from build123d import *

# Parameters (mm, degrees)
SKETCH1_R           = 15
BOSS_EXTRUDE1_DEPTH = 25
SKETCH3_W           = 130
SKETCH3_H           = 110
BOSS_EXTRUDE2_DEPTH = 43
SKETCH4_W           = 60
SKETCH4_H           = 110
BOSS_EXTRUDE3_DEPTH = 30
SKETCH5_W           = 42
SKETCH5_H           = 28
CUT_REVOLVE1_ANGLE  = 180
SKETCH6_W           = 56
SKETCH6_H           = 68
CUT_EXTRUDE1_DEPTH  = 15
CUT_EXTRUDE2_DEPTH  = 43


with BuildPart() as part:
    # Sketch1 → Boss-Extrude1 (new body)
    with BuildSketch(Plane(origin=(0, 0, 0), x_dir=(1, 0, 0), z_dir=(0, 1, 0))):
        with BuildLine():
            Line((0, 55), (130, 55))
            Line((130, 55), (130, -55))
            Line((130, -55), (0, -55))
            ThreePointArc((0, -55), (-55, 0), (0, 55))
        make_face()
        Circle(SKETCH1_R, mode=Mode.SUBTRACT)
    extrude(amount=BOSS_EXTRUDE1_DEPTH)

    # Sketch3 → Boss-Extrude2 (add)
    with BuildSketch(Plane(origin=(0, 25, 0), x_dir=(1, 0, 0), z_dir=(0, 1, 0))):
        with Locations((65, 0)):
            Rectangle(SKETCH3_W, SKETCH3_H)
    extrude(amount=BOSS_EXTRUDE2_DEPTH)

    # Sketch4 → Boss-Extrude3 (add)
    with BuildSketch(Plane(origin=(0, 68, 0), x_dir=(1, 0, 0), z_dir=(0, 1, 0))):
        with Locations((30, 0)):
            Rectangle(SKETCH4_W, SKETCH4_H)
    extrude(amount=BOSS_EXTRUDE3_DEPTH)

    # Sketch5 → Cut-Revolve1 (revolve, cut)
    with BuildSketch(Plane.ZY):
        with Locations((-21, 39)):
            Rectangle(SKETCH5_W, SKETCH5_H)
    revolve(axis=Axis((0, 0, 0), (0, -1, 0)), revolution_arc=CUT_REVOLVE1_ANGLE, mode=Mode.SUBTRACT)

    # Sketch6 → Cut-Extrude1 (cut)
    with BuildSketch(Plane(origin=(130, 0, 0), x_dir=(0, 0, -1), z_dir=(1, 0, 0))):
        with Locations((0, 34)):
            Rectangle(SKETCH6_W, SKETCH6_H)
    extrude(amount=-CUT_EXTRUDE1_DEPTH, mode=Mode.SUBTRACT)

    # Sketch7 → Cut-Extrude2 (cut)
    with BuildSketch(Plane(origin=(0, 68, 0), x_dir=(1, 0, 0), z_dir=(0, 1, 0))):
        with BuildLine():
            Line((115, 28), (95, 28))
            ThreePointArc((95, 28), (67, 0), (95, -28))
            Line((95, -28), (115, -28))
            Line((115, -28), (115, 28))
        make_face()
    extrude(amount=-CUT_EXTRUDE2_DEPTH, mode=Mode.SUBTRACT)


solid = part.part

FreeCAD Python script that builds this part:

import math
import FreeCAD as App
import Part
import Sketcher

doc = App.newDocument("Part")
body = doc.addObject("PartDesign::Body", "Body")

# Sketch on XZ plane
sketch1 = doc.addObject("Sketcher::SketchObject", "Sketch")
body.addObject(sketch1)
sketch1.AttachmentSupport = (doc.XZ_Plane, [""])
sketch1.MapMode = "FlatFace"
sketch1.addGeometry([
    Part.LineSegment(App.Vector(130, -55, 0), App.Vector(0, -55, 0)),  # 0
    Part.ArcOfCircle(Part.Circle(App.Vector(0, 0, 0), App.Vector(0, 0, 1), 55), math.radians(90), math.radians(270)),  # 1
    Part.LineSegment(App.Vector(0, 55, 0), App.Vector(130, 55, 0)),  # 2
    Part.LineSegment(App.Vector(130, 55, 0), App.Vector(130, -55, 0)),  # 3
    Part.Circle(App.Vector(0, 0, 0), App.Vector(0, 0, 1), 15),  # 4
], False)
sketch1.addConstraint([
    Sketcher.Constraint("Tangent", 0, 2, 1, 2),
    Sketcher.Constraint("Tangent", 1, 1, 2, 1),
    Sketcher.Constraint("Coincident", 2, 2, 3, 1),
    Sketcher.Constraint("Coincident", 3, 2, 0, 1),
    Sketcher.Constraint("Horizontal", 0),
    Sketcher.Constraint("Horizontal", 2),
    Sketcher.Constraint("Vertical", 3),
    Sketcher.Constraint("Coincident", 1, 3, -1, 1),
    Sketcher.Constraint("Coincident", 4, 3, -1, 1),
    Sketcher.Constraint("Diameter", 4, 30.0),
    Sketcher.Constraint("Radius", 1, 55.0),
    Sketcher.Constraint("DistanceX", 0, 2, 0, 1, 130.0),
])
pad1 = doc.addObject("PartDesign::Pad", "Pad")
body.addObject(pad1)
pad1.Profile = sketch1
pad1.Length = 25
pad1.Reversed = True

# Sketch on XZ plane
sketch2 = doc.addObject("Sketcher::SketchObject", "Sketch001")
body.addObject(sketch2)
sketch2.AttachmentSupport = (doc.XZ_Plane, [""])
sketch2.MapMode = "FlatFace"
sketch2.AttachmentOffset = App.Placement(App.Vector(0, 0, -25), App.Rotation())
sketch2.addGeometry([
    Part.LineSegment(App.Vector(0, -55, 0), App.Vector(0, 55, 0)),
    Part.LineSegment(App.Vector(0, 55, 0), App.Vector(130, 55, 0)),
    Part.LineSegment(App.Vector(130, 55, 0), App.Vector(130, -55, 0)),
    Part.LineSegment(App.Vector(130, -55, 0), App.Vector(0, -55, 0)),
], False)
sketch2.addConstraint([
    Sketcher.Constraint("Coincident", 0, 2, 1, 1),
    Sketcher.Constraint("Coincident", 1, 2, 2, 1),
    Sketcher.Constraint("Coincident", 2, 2, 3, 1),
    Sketcher.Constraint("Coincident", 3, 2, 0, 1),
    Sketcher.Constraint("Vertical", 0),
    Sketcher.Constraint("Horizontal", 1),
    Sketcher.Constraint("Vertical", 2),
    Sketcher.Constraint("Horizontal", 3),
    Sketcher.Constraint("Symmetric", 0, 2, 3, 2, -1, 1),
    Sketcher.Constraint("DistanceX", 1, 1, 1, 2, 130.0),
    Sketcher.Constraint("DistanceY", 0, 1, 0, 2, 110.0),
])
pad2 = doc.addObject("PartDesign::Pad", "Pad001")
body.addObject(pad2)
pad2.Profile = sketch2
pad2.Length = 43
pad2.Reversed = True

# Sketch on XZ plane
sketch3 = doc.addObject("Sketcher::SketchObject", "Sketch002")
body.addObject(sketch3)
sketch3.AttachmentSupport = (doc.XZ_Plane, [""])
sketch3.MapMode = "FlatFace"
sketch3.AttachmentOffset = App.Placement(App.Vector(0, 0, -68), App.Rotation())
sketch3.addGeometry([
    Part.LineSegment(App.Vector(0, -55, 0), App.Vector(0, 55, 0)),
    Part.LineSegment(App.Vector(0, 55, 0), App.Vector(60, 55, 0)),
    Part.LineSegment(App.Vector(60, 55, 0), App.Vector(60, -55, 0)),
    Part.LineSegment(App.Vector(60, -55, 0), App.Vector(0, -55, 0)),
], False)
sketch3.addConstraint([
    Sketcher.Constraint("Coincident", 0, 2, 1, 1),
    Sketcher.Constraint("Coincident", 1, 2, 2, 1),
    Sketcher.Constraint("Coincident", 2, 2, 3, 1),
    Sketcher.Constraint("Coincident", 3, 2, 0, 1),
    Sketcher.Constraint("Vertical", 0),
    Sketcher.Constraint("Horizontal", 1),
    Sketcher.Constraint("Vertical", 2),
    Sketcher.Constraint("Horizontal", 3),
    Sketcher.Constraint("Symmetric", 0, 2, 3, 2, -1, 1),
    Sketcher.Constraint("DistanceX", 1, 1, 1, 2, 60.0),
    Sketcher.Constraint("DistanceY", 0, 1, 0, 2, 110.0),
])
pad3 = doc.addObject("PartDesign::Pad", "Pad002")
body.addObject(pad3)
pad3.Profile = sketch3
pad3.Length = 30
pad3.Reversed = True

# Sketch on YZ plane
sketch4 = doc.addObject("Sketcher::SketchObject", "Sketch003")
body.addObject(sketch4)
sketch4.AttachmentSupport = (doc.YZ_Plane, [""])
sketch4.MapMode = "FlatFace"
sketch4.addGeometry([
    Part.LineSegment(App.Vector(53, -42, 0), App.Vector(25, -42, 0)),
    Part.LineSegment(App.Vector(25, -42, 0), App.Vector(25, 0, 0)),
    Part.LineSegment(App.Vector(25, 0, 0), App.Vector(53, 0, 0)),
    Part.LineSegment(App.Vector(53, 0, 0), App.Vector(53, -42, 0)),
], False)
sketch4.addConstraint([
    Sketcher.Constraint("Coincident", 0, 2, 1, 1),
    Sketcher.Constraint("Coincident", 1, 2, 2, 1),
    Sketcher.Constraint("Coincident", 2, 2, 3, 1),
    Sketcher.Constraint("Coincident", 3, 2, 0, 1),
    Sketcher.Constraint("Horizontal", 0),
    Sketcher.Constraint("Vertical", 1),
    Sketcher.Constraint("Horizontal", 2),
    Sketcher.Constraint("Vertical", 3),
    Sketcher.Constraint("PointOnObject", 1, 2, -1),
    Sketcher.Constraint("DistanceX", 0, 2, 0, 1, 28.0),
    Sketcher.Constraint("DistanceY", 1, 1, 1, 2, 42.0),
    Sketcher.Constraint("DistanceX", -1, 1, 0, 2, 25.0),
])
groove = doc.addObject("PartDesign::Groove", "Groove")
body.addObject(groove)
groove.Profile = sketch4
groove.ReferenceAxis = (sketch4, ["H_Axis"])
groove.Angle = 180
groove.Reversed = True

# Sketch on YZ plane
sketch5 = doc.addObject("Sketcher::SketchObject", "Sketch004")
body.addObject(sketch5)
sketch5.AttachmentSupport = (doc.YZ_Plane, [""])
sketch5.MapMode = "FlatFace"
sketch5.AttachmentOffset = App.Placement(App.Vector(0, 0, 130), App.Rotation())
sketch5.addGeometry([
    Part.LineSegment(App.Vector(68, 28, 0), App.Vector(0, 28, 0)),
    Part.LineSegment(App.Vector(0, 28, 0), App.Vector(0, -28, 0)),
    Part.LineSegment(App.Vector(0, -28, 0), App.Vector(68, -28, 0)),
    Part.LineSegment(App.Vector(68, -28, 0), App.Vector(68, 28, 0)),
], False)
sketch5.addConstraint([
    Sketcher.Constraint("Coincident", 0, 2, 1, 1),
    Sketcher.Constraint("Coincident", 1, 2, 2, 1),
    Sketcher.Constraint("Coincident", 2, 2, 3, 1),
    Sketcher.Constraint("Coincident", 3, 2, 0, 1),
    Sketcher.Constraint("Horizontal", 0),
    Sketcher.Constraint("Vertical", 1),
    Sketcher.Constraint("Horizontal", 2),
    Sketcher.Constraint("Vertical", 3),
    Sketcher.Constraint("Symmetric", 0, 2, 1, 2, -1, 1),
    Sketcher.Constraint("DistanceX", 0, 2, 0, 1, 68.0),
    Sketcher.Constraint("DistanceY", 1, 2, 1, 1, 56.0),
])
pocket1 = doc.addObject("PartDesign::Pocket", "Pocket")
body.addObject(pocket1)
pocket1.Profile = sketch5
pocket1.Length = 15

# Sketch on XZ plane
sketch6 = doc.addObject("Sketcher::SketchObject", "Sketch005")
body.addObject(sketch6)
sketch6.AttachmentSupport = (doc.XZ_Plane, [""])
sketch6.MapMode = "FlatFace"
sketch6.AttachmentOffset = App.Placement(App.Vector(0, 0, -68), App.Rotation())
sketch6.addGeometry([
    Part.LineSegment(App.Vector(115, -28, 0), App.Vector(95, -28, 0)),
    Part.ArcOfCircle(Part.Circle(App.Vector(95, 0, 0), App.Vector(0, 0, 1), 28), math.radians(90), math.radians(270)),
    Part.LineSegment(App.Vector(95, 28, 0), App.Vector(115, 28, 0)),
    Part.LineSegment(App.Vector(115, 28, 0), App.Vector(115, -28, 0)),
], False)
sketch6.addConstraint([
    Sketcher.Constraint("Tangent", 0, 2, 1, 2),
    Sketcher.Constraint("Tangent", 1, 1, 2, 1),
    Sketcher.Constraint("Coincident", 2, 2, 3, 1),
    Sketcher.Constraint("Coincident", 3, 2, 0, 1),
    Sketcher.Constraint("Horizontal", 0),
    Sketcher.Constraint("Horizontal", 2),
    Sketcher.Constraint("Vertical", 3),
    Sketcher.Constraint("PointOnObject", 1, 3, -1),
    Sketcher.Constraint("Radius", 1, 28.0),
    Sketcher.Constraint("DistanceX", 0, 2, 0, 1, 20.0),
    Sketcher.Constraint("DistanceX", -1, 1, 1, 3, 95.0),
])
pocket2 = doc.addObject("PartDesign::Pocket", "Pocket001")
body.addObject(pocket2)
pocket2.Profile = sketch6
pocket2.Length = 43
pocket2.Reversed = True

doc.recompute()
